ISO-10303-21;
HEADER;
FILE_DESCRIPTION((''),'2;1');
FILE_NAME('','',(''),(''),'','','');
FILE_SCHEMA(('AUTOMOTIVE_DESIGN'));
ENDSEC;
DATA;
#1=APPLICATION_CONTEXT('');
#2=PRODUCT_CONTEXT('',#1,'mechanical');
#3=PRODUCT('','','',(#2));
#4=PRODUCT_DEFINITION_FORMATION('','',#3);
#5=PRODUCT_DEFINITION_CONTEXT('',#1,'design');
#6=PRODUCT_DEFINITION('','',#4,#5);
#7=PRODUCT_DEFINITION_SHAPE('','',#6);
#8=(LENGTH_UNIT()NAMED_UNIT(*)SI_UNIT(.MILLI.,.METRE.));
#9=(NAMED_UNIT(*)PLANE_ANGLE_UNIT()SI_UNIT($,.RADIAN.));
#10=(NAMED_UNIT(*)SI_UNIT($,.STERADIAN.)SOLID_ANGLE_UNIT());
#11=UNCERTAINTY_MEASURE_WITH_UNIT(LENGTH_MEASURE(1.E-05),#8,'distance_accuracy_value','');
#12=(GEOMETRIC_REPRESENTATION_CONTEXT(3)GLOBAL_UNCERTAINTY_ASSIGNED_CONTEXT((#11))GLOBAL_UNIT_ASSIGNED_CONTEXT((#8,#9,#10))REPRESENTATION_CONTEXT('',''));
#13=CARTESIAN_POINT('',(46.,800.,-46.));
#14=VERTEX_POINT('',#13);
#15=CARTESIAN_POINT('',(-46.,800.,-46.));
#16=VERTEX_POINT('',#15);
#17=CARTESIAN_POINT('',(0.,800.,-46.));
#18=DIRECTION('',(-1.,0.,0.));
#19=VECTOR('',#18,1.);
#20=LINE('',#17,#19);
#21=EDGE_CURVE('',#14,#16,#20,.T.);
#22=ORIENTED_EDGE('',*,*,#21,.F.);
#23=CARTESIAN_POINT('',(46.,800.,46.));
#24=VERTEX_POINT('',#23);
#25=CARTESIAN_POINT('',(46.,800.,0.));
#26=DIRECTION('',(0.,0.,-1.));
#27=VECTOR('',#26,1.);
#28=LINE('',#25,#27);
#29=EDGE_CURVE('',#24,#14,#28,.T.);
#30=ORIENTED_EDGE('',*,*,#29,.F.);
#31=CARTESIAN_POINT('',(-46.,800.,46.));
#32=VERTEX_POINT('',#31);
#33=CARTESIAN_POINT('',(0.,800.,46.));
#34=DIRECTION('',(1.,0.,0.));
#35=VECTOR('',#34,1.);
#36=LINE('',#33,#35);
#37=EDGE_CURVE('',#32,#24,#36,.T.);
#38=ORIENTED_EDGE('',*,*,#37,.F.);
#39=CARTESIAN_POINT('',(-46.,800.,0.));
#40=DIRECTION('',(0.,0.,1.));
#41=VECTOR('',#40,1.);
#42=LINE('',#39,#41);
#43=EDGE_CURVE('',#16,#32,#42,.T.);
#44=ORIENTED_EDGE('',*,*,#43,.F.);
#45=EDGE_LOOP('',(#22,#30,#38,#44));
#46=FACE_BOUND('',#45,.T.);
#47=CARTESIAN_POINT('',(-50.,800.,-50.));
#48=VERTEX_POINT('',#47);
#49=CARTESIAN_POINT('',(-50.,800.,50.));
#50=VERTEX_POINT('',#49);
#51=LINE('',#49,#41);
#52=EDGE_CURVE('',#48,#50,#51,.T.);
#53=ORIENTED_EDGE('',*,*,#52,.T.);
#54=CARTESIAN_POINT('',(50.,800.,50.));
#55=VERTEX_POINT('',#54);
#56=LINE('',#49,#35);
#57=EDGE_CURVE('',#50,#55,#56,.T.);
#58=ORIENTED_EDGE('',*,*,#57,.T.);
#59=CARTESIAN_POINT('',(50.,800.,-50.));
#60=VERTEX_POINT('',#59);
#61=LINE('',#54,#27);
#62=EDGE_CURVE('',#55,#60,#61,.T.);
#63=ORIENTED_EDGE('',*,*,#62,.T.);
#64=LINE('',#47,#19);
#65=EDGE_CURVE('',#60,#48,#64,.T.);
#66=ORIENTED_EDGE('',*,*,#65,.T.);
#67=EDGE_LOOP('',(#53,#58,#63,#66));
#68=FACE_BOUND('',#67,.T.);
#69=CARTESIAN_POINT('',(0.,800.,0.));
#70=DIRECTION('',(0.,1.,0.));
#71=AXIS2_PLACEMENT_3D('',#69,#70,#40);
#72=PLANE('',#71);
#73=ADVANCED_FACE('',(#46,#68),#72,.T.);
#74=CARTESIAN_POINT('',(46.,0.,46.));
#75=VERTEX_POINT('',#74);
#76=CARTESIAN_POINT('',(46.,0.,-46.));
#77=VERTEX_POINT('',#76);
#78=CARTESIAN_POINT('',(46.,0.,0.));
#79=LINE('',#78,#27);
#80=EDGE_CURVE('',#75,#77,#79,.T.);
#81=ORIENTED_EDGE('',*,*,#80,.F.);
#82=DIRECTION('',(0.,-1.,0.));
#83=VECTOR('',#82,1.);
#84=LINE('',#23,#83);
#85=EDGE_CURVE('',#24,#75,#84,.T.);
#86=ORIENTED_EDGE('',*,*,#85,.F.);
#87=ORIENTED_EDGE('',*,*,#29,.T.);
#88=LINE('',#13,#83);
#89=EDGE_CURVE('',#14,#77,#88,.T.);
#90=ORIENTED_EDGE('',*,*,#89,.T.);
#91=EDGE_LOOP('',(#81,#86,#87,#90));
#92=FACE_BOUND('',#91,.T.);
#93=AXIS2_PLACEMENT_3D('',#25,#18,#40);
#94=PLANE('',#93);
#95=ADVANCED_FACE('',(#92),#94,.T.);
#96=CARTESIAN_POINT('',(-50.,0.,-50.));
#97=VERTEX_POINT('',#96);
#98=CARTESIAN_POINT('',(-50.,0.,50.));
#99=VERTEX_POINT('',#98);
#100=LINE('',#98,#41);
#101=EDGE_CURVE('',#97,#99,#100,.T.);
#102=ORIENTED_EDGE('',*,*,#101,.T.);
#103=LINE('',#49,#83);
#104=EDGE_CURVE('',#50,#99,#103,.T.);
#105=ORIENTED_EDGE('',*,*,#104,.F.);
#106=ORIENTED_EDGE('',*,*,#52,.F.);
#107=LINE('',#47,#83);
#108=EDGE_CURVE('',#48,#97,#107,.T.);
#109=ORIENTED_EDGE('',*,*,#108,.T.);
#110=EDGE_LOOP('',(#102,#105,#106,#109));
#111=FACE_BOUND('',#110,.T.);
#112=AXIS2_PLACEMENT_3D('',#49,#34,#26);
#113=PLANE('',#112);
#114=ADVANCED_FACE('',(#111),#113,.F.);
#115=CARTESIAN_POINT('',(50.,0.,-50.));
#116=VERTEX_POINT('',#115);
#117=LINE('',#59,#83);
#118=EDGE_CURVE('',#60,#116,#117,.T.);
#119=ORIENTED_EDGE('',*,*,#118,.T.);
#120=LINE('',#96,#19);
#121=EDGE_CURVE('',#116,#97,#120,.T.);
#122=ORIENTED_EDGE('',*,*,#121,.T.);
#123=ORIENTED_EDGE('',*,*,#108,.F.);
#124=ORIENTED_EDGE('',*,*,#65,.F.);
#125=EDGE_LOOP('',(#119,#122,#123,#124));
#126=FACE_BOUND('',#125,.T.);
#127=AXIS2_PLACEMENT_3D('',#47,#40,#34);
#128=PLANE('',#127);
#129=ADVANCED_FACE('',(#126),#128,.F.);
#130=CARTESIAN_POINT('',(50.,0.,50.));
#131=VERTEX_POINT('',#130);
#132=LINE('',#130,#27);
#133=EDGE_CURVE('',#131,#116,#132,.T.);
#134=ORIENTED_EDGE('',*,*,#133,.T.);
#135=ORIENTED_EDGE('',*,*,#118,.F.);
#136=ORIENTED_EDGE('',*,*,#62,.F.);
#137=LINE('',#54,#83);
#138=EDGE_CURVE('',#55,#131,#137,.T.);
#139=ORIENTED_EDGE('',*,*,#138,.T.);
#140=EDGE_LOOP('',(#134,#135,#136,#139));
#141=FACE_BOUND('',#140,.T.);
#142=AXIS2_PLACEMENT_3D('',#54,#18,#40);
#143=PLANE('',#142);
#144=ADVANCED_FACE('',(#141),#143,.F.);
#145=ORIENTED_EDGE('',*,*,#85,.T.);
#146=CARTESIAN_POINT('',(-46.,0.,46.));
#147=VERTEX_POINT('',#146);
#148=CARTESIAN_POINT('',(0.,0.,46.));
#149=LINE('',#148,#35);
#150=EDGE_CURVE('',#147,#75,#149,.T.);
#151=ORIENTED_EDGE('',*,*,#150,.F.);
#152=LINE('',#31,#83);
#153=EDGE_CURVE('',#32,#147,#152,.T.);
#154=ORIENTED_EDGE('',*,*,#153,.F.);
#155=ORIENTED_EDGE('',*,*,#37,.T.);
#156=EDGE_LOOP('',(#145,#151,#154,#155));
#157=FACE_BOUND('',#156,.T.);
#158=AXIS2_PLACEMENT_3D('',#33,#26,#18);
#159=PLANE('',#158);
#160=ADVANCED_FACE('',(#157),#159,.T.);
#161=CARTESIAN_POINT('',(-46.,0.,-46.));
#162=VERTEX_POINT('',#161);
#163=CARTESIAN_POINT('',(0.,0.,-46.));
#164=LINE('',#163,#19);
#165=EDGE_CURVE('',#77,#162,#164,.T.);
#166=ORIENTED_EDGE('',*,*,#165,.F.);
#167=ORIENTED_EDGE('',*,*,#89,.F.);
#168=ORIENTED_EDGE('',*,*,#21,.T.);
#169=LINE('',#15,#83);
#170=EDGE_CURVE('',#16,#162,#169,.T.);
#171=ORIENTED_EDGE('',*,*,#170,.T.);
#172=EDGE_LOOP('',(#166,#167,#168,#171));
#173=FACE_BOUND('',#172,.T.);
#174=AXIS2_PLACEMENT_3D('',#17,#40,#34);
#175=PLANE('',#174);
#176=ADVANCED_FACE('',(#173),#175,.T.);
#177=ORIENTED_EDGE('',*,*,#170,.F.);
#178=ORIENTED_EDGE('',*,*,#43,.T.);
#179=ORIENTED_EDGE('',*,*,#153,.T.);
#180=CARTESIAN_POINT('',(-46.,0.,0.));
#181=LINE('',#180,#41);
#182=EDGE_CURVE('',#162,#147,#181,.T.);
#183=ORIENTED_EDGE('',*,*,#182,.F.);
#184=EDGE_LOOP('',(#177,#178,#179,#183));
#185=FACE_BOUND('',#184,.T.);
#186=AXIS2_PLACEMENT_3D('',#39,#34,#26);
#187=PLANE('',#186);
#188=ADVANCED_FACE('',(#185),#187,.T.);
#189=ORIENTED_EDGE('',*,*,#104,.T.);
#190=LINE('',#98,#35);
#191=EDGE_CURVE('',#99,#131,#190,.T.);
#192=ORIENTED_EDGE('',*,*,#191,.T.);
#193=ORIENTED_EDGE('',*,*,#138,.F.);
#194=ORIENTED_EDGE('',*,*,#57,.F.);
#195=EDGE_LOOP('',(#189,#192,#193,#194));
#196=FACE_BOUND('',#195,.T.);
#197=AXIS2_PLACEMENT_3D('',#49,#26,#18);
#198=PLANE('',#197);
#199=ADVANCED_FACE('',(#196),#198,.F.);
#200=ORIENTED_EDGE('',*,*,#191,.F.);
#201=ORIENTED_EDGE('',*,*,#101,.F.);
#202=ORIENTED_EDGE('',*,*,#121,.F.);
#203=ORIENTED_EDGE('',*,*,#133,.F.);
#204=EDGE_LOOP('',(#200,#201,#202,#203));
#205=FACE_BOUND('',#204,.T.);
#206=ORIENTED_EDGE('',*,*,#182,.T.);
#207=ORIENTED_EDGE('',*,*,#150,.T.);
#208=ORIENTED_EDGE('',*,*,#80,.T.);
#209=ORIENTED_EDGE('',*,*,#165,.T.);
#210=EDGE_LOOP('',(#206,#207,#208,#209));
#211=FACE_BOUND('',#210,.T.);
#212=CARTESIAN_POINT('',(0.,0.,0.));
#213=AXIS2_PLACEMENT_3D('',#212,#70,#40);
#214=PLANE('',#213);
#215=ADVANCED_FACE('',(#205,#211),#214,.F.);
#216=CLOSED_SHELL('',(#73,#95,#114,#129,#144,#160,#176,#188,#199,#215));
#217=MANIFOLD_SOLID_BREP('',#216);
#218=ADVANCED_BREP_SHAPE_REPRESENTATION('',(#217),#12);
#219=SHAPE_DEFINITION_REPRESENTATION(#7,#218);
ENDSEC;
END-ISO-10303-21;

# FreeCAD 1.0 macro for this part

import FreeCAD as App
import Part
import Sketcher

V = App.Vector

doc = App.newDocument("Part")
body = doc.addObject("PartDesign::Body", "Body")

sketch1 = body.newObject("Sketcher::SketchObject", "Sketch")
sketch1.AttachmentSupport = (doc.getObject("XZ_Plane"), [""])
sketch1.MapMode = "FlatFace"
sketch1.addGeometry([
    Part.LineSegment(V(-50, -50, 0), V(-50, 50, 0)),
    Part.LineSegment(V(-50, 50, 0), V(50, 50, 0)),
    Part.LineSegment(V(50, 50, 0), V(50, -50, 0)),
    Part.LineSegment(V(50, -50, 0), V(-50, -50, 0)),
    Part.LineSegment(V(46, 46, 0), V(-46, 46, 0)),
    Part.LineSegment(V(-46, 46, 0), V(-46, -46, 0)),
    Part.LineSegment(V(-46, -46, 0), V(46, -46, 0)),
    Part.LineSegment(V(46, -46, 0), V(46, 46, 0)),
], False)
sketch1.addConstraint([
    Sketcher.Constraint("Coincident", 0, 2, 1, 1),
    Sketcher.Constraint("Coincident", 1, 2, 2, 1),
    Sketcher.Constraint("Coincident", 2, 2, 3, 1),
    Sketcher.Constraint("Coincident", 3, 2, 0, 1),
    Sketcher.Constraint("Coincident", 4, 2, 5, 1),
    Sketcher.Constraint("Coincident", 5, 2, 6, 1),
    Sketcher.Constraint("Coincident", 6, 2, 7, 1),
    Sketcher.Constraint("Coincident", 7, 2, 4, 1),
    Sketcher.Constraint("Vertical", 0),
    Sketcher.Constraint("Horizontal", 1),
    Sketcher.Constraint("Vertical", 2),
    Sketcher.Constraint("Horizontal", 3),
    Sketcher.Constraint("Horizontal", 4),
    Sketcher.Constraint("Vertical", 5),
    Sketcher.Constraint("Horizontal", 6),
    Sketcher.Constraint("Vertical", 7),
    Sketcher.Constraint("Symmetric", 0, 2, 2, 2, -1, 1),
    Sketcher.Constraint("Symmetric", 4, 2, 6, 2, -1, 1),
    Sketcher.Constraint("Equal", 3, 0),
    Sketcher.Constraint("Equal", 6, 5),
    Sketcher.Constraint("DistanceX", 1, 1, 1, 2, 100.0),
    Sketcher.Constraint("DistanceX", 4, 2, 4, 1, 92.0),
])
pad1 = body.newObject("PartDesign::Pad", "Pad")
pad1.Profile = sketch1
pad1.Length = 800
pad1.Reversed = True

doc.recompute()
